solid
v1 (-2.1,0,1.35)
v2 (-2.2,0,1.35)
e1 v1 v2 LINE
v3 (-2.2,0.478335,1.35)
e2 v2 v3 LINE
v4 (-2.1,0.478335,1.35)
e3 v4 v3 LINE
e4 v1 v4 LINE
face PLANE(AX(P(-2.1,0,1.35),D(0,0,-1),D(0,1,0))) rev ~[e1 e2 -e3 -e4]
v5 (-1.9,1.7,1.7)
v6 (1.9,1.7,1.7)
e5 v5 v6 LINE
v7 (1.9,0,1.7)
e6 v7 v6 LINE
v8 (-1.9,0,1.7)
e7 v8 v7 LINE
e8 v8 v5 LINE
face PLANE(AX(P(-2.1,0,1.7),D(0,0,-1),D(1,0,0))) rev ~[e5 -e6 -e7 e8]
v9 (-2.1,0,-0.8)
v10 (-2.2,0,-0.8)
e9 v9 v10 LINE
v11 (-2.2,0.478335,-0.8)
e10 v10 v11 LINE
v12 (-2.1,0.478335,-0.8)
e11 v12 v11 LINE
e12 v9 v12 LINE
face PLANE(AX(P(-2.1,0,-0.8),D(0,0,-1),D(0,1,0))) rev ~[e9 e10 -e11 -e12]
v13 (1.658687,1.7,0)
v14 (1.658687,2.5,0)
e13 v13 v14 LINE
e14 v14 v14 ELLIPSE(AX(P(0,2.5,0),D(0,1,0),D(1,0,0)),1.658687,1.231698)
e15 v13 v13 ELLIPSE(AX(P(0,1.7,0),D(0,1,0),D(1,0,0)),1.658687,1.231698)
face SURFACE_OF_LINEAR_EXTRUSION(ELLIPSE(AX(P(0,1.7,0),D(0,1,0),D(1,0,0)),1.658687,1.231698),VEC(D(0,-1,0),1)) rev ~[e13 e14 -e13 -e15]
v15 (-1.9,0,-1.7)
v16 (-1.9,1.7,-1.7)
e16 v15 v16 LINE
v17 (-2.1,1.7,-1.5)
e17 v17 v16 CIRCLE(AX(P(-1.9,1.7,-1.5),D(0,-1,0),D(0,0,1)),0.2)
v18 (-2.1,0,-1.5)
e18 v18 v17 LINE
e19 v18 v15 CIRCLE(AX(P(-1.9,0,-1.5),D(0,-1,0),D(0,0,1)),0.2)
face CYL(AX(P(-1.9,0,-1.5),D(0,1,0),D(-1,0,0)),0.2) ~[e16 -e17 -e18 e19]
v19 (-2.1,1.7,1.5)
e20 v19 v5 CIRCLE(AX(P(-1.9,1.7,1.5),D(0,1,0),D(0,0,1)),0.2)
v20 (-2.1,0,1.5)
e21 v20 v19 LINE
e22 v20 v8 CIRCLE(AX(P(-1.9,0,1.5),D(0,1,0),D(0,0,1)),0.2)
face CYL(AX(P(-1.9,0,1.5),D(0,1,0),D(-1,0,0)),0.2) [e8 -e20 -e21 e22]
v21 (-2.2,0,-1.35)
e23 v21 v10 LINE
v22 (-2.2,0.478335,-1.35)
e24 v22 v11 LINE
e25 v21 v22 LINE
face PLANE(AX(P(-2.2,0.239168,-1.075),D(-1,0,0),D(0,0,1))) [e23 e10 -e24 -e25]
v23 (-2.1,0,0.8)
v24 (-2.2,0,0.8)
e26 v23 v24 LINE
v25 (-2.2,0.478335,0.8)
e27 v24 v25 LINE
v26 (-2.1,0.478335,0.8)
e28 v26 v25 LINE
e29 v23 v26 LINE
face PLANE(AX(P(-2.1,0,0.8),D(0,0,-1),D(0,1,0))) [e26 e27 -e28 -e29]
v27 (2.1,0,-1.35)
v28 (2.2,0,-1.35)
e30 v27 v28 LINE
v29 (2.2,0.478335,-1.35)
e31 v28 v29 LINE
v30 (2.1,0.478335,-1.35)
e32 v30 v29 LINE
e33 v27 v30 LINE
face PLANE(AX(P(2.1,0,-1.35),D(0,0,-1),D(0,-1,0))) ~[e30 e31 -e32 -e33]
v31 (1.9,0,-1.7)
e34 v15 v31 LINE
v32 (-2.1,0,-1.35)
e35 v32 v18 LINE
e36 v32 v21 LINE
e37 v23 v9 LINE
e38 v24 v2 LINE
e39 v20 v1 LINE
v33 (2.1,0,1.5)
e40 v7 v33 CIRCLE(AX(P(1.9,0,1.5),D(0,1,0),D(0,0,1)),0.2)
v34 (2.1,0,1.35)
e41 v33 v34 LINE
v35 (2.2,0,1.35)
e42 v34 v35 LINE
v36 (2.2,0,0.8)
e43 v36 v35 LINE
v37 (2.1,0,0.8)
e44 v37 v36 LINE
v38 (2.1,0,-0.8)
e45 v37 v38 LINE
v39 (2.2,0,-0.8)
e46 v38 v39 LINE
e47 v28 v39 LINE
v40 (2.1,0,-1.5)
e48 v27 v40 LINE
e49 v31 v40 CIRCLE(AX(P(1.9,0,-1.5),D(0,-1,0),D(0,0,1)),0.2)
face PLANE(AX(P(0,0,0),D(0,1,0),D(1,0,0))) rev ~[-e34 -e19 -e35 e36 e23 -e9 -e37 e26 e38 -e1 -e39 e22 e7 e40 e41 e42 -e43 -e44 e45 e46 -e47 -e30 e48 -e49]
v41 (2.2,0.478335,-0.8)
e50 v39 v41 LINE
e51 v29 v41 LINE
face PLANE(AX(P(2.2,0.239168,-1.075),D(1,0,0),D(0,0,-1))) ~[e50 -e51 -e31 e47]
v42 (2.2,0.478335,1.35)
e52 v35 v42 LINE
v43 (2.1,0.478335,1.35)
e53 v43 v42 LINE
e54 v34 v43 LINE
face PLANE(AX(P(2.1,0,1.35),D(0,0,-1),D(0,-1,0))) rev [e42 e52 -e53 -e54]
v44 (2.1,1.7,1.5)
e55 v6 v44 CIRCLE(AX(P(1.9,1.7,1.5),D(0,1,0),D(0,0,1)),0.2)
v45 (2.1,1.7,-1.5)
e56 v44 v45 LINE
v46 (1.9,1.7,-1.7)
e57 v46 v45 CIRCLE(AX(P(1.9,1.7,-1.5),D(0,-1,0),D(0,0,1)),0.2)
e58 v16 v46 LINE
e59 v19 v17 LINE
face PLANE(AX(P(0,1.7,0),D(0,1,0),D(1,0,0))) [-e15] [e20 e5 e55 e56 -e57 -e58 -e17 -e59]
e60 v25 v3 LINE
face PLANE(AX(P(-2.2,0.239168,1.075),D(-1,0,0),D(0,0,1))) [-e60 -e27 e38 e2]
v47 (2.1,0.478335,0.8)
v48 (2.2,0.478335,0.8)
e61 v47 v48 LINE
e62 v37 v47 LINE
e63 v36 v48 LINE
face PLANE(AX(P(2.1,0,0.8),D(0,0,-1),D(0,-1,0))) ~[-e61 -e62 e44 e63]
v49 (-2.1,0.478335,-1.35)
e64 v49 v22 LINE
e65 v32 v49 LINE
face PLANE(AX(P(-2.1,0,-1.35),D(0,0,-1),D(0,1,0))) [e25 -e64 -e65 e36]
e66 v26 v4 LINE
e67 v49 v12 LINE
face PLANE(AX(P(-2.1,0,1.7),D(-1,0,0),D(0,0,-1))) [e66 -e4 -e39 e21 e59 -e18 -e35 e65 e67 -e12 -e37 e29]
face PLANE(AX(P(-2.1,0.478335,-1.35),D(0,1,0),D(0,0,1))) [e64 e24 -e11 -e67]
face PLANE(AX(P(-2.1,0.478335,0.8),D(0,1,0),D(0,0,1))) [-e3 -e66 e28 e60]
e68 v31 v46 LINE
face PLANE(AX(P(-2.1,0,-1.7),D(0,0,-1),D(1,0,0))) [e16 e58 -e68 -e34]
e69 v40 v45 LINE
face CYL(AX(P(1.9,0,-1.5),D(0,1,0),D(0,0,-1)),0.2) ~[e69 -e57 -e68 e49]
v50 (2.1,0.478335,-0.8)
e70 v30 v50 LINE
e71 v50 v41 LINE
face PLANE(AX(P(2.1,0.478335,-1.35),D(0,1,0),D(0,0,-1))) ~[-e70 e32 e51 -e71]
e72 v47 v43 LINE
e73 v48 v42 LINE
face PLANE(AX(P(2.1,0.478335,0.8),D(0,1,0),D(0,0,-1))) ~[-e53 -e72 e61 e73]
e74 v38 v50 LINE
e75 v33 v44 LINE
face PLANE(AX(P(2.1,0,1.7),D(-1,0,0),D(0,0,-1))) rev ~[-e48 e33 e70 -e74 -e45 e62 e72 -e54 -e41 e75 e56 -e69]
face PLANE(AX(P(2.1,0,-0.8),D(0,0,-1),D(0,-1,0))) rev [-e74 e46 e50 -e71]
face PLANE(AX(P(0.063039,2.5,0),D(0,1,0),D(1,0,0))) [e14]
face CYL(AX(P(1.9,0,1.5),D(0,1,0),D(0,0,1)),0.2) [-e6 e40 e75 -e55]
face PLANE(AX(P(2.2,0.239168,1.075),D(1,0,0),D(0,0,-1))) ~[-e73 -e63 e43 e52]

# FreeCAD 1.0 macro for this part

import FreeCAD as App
import Part
import Sketcher
Q = App.Units.Quantity


def edges_at(feature, points):
    """Names of the edges that pass closest to the given points."""
    edges = feature.Shape.Edges
    near = lambda p: min(range(len(edges)), key=lambda i: edges[i].distToShape(Part.Vertex(*p))[0])
    return sorted({f"Edge{near(p) + 1}" for p in points})


def add_polygon(sketch, points):
    """Adds a closed chain of lines whose ends are joined by coincident constraints."""
    first, n = sketch.GeometryCount, len(points)
    for a, b in zip(points, points[1:] + points[:1]):
        sketch.addGeometry(Part.LineSegment(App.Vector(*a, 0), App.Vector(*b, 0)), False)
    for i in range(n):
        sketch.addConstraint(Sketcher.Constraint("Coincident", first + i, 2, first + (i + 1) % n, 1))

doc = App.newDocument("Part")
body = doc.addObject("PartDesign::Body", "Body")

sketch1 = body.newObject("Sketcher::SketchObject", "Sketch")
sketch1.AttachmentSupport = (doc.getObject("XZ_Plane"), [""])
sketch1.MapMode = "FlatFace"
add_polygon(sketch1, [(-2.1, -1.7), (-2.1, 1.7), (2.1, 1.7), (2.1, -1.7)])
sketch1.addConstraint(Sketcher.Constraint("Vertical", 0))
sketch1.addConstraint(Sketcher.Constraint("Horizontal", 1))
sketch1.addConstraint(Sketcher.Constraint("Vertical", 2))
sketch1.addConstraint(Sketcher.Constraint("Horizontal", 3))
sketch1.addConstraint(Sketcher.Constraint("Symmetric", 0, 2, 2, 2, -1, 1))
sketch1.addConstraint(Sketcher.Constraint("DistanceX", 1, 1, 1, 2, Q("4.2 mm")))
sketch1.addConstraint(Sketcher.Constraint("DistanceY", 0, 1, 0, 2, Q("3.4 mm")))
pad1 = body.newObject("PartDesign::Pad", "Pad")
pad1.Profile = sketch1
pad1.Length = 1.7
pad1.Reversed = True

sketch2 = body.newObject("Sketcher::SketchObject", "Sketch001")
sketch2.AttachmentSupport = (doc.getObject("XZ_Plane"), [""])
sketch2.MapMode = "FlatFace"
sketch2.AttachmentOffset = App.Placement(App.Vector(0, 0, -1.7), App.Rotation())
sketch2.addGeometry(Part.Ellipse(App.Vector(1.658687, 0, 0), App.Vector(0, 1.231698, 0), App.Vector(0, 0, 0)), False)
sketch2.addConstraint(Sketcher.Constraint("Block", 0))
pad2 = body.newObject("PartDesign::Pad", "Pad001")
pad2.Profile = sketch2
pad2.Length = 0.8
pad2.Reversed = True
doc.recompute()

fillet = body.newObject("PartDesign::Fillet", "Fillet")
fillet.Base = (pad2, edges_at(pad2, [
    (2.1, 0.85, 1.7),
    (-2.1, 0.85, 1.7),
    (-2.1, 0.85, -1.7),
    (2.1, 0.85, -1.7),
]))
fillet.Radius = 0.2

sketch3 = body.newObject("Sketcher::SketchObject", "Sketch002")
sketch3.AttachmentSupport = (doc.getObject("YZ_Plane"), [""])
sketch3.MapMode = "FlatFace"
sketch3.AttachmentOffset = App.Placement(App.Vector(0, 0, -2.1), App.Rotation())
add_polygon(sketch3, [(0.48, -1.35), (0, -1.35), (0, -0.8), (0.48, -0.8)])
add_polygon(sketch3, [(0.48, 0.8), (0, 0.8), (0, 1.35), (0.48, 1.35)])
sketch3.addConstraint(Sketcher.Constraint("Horizontal", 0))
sketch3.addConstraint(Sketcher.Constraint("Vertical", 1))
sketch3.addConstraint(Sketcher.Constraint("Horizontal", 2))
sketch3.addConstraint(Sketcher.Constraint("Vertical", 3))
sketch3.addConstraint(Sketcher.Constraint("Horizontal", 4))
sketch3.addConstraint(Sketcher.Constraint("Vertical", 5))
sketch3.addConstraint(Sketcher.Constraint("Horizontal", 6))
sketch3.addConstraint(Sketcher.Constraint("Vertical", 7))
sketch3.addConstraint(Sketcher.Constraint("Symmetric", 1, 2, 4, 2, -1, 1))
sketch3.addConstraint(Sketcher.Constraint("Symmetric", 0, 2, 5, 2, -1))
sketch3.addConstraint(Sketcher.Constraint("Vertical", 3, 2, 6, 2))
sketch3.addConstraint(Sketcher.Constraint("DistanceY", 1, 1, 1, 2, Q("0.55 mm")))
sketch3.addConstraint(Sketcher.Constraint("DistanceY", 1, 2, -1, 1, Q("0.8 mm")))
sketch3.addConstraint(Sketcher.Constraint("DistanceX", 0, 2, 0, 1, Q("0.478335 mm")))
pad3 = body.newObject("PartDesign::Pad", "Pad002")
pad3.Profile = sketch3
pad3.Length = 0.1
pad3.Reversed = True
doc.recompute()

mirrored = body.newObject("PartDesign::Mirrored", "Mirrored")
mirrored.Originals = [pad3]
mirrored.MirrorPlane = (doc.getObject("YZ_Plane"), [""])
body.Tip = mirrored

doc.recompute()
